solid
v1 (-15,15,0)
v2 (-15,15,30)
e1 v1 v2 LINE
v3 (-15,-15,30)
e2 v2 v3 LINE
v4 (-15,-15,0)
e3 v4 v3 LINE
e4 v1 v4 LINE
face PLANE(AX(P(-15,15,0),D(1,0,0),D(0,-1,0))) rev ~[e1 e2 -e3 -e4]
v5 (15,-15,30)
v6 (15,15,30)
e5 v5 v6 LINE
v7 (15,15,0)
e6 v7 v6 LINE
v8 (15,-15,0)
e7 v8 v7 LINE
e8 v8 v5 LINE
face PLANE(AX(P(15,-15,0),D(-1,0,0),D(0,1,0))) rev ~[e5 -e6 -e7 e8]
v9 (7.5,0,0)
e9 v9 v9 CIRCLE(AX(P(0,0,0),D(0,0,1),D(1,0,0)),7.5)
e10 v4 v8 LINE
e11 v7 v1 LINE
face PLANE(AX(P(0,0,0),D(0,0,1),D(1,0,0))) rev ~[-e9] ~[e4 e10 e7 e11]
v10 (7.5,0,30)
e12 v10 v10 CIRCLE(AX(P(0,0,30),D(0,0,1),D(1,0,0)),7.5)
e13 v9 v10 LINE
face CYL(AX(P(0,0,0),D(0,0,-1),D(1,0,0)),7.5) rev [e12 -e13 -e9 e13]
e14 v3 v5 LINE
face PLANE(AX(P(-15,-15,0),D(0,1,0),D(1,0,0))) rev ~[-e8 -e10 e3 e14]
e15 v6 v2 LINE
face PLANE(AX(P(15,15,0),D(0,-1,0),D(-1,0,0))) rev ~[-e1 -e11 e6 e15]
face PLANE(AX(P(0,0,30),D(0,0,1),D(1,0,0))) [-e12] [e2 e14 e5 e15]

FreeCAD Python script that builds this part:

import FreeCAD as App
import Part
import Sketcher


def add_polygon(sketch, points):
    """Adds a closed chain of lines whose ends are joined by coincident constraints."""
    first, n = sketch.GeometryCount, len(points)
    for a, b in zip(points, points[1:] + points[:1]):
        sketch.addGeometry(Part.LineSegment(App.Vector(*a, 0), App.Vector(*b, 0)), False)
    for i in range(n):
        sketch.addConstraint(Sketcher.Constraint("Coincident", first + i, 2, first + (i + 1) % n, 1))

doc = App.newDocument("Part")
body = doc.addObject("PartDesign::Body", "Body")

# Sketch on XY plane
sketch1 = doc.addObject("Sketcher::SketchObject", "Sketch")
body.addObject(sketch1)
sketch1.AttachmentSupport = (doc.XY_Plane, [""])
sketch1.MapMode = "FlatFace"
add_polygon(sketch1, [(15, -15), (15, 15), (-15, 15), (-15, -15)])  # lines 0-3
sketch1.addGeometry(Part.Circle(App.Vector(0, 0, 0), App.Vector(0, 0, 1), 8), False)  # 4
sketch1.addConstraint([
    Sketcher.Constraint("Vertical", 0),
    Sketcher.Constraint("Horizontal", 1),
    Sketcher.Constraint("Vertical", 2),
    Sketcher.Constraint("Horizontal", 3),
    Sketcher.Constraint("Coincident", 4, 3, -1, 1),
    Sketcher.Constraint("Symmetric", 0, 2, 2, 2, -1, 1),
    Sketcher.Constraint("Equal", 3, 0),
    Sketcher.Constraint("Diameter", 4, 15.0),
    Sketcher.Constraint("DistanceX", 1, 2, 1, 1, 30.0),
])
pad1 = doc.addObject("PartDesign::Pad", "Pad")
body.addObject(pad1)
pad1.Profile = sketch1
pad1.Length = 30

doc.recompute()
